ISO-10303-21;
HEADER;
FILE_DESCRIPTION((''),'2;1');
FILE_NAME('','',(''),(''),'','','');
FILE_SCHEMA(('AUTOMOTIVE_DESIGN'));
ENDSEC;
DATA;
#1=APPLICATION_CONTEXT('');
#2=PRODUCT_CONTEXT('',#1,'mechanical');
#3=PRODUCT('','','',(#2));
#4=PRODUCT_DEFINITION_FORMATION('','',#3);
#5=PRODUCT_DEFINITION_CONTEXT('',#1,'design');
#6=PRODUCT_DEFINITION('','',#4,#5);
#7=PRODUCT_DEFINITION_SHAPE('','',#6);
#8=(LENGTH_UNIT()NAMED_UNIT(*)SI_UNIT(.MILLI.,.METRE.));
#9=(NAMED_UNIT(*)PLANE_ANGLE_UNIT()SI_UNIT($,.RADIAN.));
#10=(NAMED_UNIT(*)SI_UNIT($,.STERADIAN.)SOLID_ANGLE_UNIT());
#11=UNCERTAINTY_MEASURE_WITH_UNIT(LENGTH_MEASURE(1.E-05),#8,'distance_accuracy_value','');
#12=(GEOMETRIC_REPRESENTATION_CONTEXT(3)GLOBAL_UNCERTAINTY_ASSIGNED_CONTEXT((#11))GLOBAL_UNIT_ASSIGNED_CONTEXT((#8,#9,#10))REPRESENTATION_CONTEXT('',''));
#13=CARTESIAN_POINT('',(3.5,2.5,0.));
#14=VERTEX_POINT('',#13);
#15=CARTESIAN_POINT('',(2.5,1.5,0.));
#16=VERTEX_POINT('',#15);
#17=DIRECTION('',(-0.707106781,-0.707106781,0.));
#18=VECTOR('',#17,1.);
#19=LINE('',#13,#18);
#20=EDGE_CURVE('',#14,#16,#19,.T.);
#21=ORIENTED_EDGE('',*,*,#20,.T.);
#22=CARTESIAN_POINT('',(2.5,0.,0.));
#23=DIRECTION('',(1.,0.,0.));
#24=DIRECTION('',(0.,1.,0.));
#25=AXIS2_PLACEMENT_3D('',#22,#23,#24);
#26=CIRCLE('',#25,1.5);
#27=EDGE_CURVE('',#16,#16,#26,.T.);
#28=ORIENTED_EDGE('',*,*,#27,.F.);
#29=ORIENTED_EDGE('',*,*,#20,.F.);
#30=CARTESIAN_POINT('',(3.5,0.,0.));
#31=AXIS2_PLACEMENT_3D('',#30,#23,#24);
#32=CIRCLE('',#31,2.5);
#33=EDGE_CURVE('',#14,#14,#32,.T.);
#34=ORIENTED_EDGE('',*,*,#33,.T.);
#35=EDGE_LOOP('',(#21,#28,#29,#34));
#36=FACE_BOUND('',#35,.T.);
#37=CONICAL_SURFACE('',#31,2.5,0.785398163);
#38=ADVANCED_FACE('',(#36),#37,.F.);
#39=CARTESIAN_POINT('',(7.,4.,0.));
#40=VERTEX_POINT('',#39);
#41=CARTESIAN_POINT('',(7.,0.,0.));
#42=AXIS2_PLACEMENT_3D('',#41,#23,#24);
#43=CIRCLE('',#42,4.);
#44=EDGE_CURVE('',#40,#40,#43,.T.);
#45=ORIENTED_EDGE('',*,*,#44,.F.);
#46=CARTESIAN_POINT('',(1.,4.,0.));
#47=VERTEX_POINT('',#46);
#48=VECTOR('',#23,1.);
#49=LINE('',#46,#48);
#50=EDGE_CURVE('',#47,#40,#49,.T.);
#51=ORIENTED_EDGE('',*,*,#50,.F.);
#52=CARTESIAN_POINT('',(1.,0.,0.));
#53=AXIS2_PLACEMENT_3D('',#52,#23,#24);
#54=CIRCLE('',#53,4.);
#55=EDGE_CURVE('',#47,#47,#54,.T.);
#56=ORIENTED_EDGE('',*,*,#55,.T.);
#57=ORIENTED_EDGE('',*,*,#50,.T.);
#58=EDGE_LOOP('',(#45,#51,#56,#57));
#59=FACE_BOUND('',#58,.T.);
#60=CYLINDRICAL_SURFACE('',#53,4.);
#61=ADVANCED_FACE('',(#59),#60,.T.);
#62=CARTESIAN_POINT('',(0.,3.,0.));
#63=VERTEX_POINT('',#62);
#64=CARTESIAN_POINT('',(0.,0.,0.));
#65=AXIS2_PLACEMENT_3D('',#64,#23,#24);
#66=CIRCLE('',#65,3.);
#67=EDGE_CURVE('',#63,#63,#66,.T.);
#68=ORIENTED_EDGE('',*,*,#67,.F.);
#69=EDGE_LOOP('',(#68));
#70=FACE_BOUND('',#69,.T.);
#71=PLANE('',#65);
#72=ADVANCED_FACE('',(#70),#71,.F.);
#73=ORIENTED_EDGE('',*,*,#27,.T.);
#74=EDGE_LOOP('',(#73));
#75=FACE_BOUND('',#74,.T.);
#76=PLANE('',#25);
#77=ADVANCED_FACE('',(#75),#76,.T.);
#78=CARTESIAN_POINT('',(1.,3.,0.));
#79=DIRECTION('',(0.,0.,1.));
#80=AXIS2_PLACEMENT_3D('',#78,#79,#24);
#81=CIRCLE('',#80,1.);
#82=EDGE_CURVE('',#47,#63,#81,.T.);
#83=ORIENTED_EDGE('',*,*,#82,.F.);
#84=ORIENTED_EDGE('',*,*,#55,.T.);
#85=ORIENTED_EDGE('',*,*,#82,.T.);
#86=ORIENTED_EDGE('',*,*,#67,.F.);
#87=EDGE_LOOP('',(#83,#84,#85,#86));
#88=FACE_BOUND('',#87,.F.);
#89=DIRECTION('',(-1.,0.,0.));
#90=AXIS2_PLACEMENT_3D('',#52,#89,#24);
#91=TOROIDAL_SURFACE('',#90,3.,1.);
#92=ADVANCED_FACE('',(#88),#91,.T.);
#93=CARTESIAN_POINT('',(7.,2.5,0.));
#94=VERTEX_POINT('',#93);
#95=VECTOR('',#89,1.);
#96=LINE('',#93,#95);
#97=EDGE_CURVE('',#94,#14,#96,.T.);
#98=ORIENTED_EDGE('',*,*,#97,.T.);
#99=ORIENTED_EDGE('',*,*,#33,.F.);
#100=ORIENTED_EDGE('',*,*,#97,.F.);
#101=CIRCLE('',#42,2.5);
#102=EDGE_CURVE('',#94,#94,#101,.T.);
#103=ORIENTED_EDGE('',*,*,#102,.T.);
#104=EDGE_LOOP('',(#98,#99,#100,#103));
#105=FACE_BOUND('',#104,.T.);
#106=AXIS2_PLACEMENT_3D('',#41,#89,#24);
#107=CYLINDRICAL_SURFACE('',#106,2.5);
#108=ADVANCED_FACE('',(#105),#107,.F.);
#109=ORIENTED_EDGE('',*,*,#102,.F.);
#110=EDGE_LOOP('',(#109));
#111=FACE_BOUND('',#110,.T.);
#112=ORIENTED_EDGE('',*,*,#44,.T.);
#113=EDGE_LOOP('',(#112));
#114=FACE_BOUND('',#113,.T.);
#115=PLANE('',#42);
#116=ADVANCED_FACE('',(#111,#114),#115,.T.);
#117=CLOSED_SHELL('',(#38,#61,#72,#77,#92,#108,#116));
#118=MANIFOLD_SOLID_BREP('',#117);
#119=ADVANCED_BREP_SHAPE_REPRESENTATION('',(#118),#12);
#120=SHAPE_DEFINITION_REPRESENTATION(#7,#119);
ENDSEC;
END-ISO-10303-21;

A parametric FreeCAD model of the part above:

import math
import FreeCAD as App
import Part
import Sketcher
Q = App.Units.Quantity

doc = App.newDocument("Part")
params = doc.addObject("Spreadsheet::Sheet", "Params")
for row, (alias, value) in enumerate([
    ("sketch1_radius", "1 mm"),
    ("sketch1_width", "6 mm"),
    ("sketch1_height", "3 mm"),
    ("sketch1_width2", "2.5 mm"),
    ("sketch1_width3", "3.5 mm"),
    ("revolution_angle", "360 deg"),
], start=1):
    params.set(f"A{row}", alias)
    params.set(f"B{row}", "=" + value)
    params.setAlias(f"B{row}", alias)

body = doc.addObject("PartDesign::Body", "Body")

sketch1 = body.newObject("Sketcher::SketchObject", "Sketch")
sketch1.AttachmentSupport = (doc.getObject("XY_Plane"), [""])
sketch1.MapMode = "FlatFace"
sketch1.addGeometry(Part.LineSegment(App.Vector(0, 0, 0), App.Vector(2.5, 0, 0)), False)
sketch1.addGeometry(Part.LineSegment(App.Vector(2.5, 0, 0), App.Vector(2.5, 1.5, 0)), False)
sketch1.addGeometry(Part.LineSegment(App.Vector(2.5, 1.5, 0), App.Vector(3.5, 2.5, 0)), False)
sketch1.addGeometry(Part.LineSegment(App.Vector(3.5, 2.5, 0), App.Vector(7, 2.5, 0)), False)
sketch1.addGeometry(Part.LineSegment(App.Vector(7, 2.5, 0), App.Vector(7, 4, 0)), False)
sketch1.addGeometry(Part.LineSegment(App.Vector(7, 4, 0), App.Vector(1, 4, 0)), False)
sketch1.addGeometry(Part.ArcOfCircle(Part.Circle(App.Vector(1, 3, 0), App.Vector(0, 0, 1), 1), math.radians(90), math.radians(180)), False)
sketch1.addGeometry(Part.LineSegment(App.Vector(0, 3, 0), App.Vector(0, 0, 0)), False)
sketch1.addConstraint(Sketcher.Constraint("Coincident", 0, 2, 1, 1))
sketch1.addConstraint(Sketcher.Constraint("Coincident", 1, 2, 2, 1))
sketch1.addConstraint(Sketcher.Constraint("Coincident", 2, 2, 3, 1))
sketch1.addConstraint(Sketcher.Constraint("Coincident", 3, 2, 4, 1))
sketch1.addConstraint(Sketcher.Constraint("Coincident", 4, 2, 5, 1))
sketch1.addConstraint(Sketcher.Constraint("Tangent", 5, 2, 6, 1))
sketch1.addConstraint(Sketcher.Constraint("Tangent", 6, 2, 7, 1))
sketch1.addConstraint(Sketcher.Constraint("Coincident", 7, 2, 0, 1))
sketch1.addConstraint(Sketcher.Constraint("Horizontal", 0))
sketch1.addConstraint(Sketcher.Constraint("Vertical", 1))
sketch1.addConstraint(Sketcher.Constraint("Horizontal", 3))
sketch1.addConstraint(Sketcher.Constraint("Vertical", 4))
sketch1.addConstraint(Sketcher.Constraint("Horizontal", 5))
sketch1.addConstraint(Sketcher.Constraint("Vertical", 7))
sketch1.addConstraint(Sketcher.Constraint("Coincident", 7, 2, -1, 1))
sketch1.addConstraint(Sketcher.Constraint("Equal", 1, 4))
sketch1.addConstraint(Sketcher.Constraint("Radius", 6, 1.0))
sketch1.addConstraint(Sketcher.Constraint("DistanceX", 5, 2, 5, 1, 6.0))
sketch1.addConstraint(Sketcher.Constraint("DistanceY", 7, 2, 7, 1, 3.0))
sketch1.addConstraint(Sketcher.Constraint("Angle", 2, Q("45 deg")))
sketch1.addConstraint(Sketcher.Constraint("DistanceX", 0, 1, 0, 2, 2.5))
sketch1.addConstraint(Sketcher.Constraint("DistanceX", 3, 1, 3, 2, 3.5))
sketch1.setExpression("Constraints[16]", "Params.sketch1_radius")
sketch1.setExpression("Constraints[17]", "Params.sketch1_width")
sketch1.setExpression("Constraints[18]", "Params.sketch1_height")
sketch1.setExpression("Constraints[20]", "Params.sketch1_width2")
sketch1.setExpression("Constraints[21]", "Params.sketch1_width3")
revolution = body.newObject("PartDesign::Revolution", "Revolution")
revolution.Profile = sketch1
revolution.ReferenceAxis = (sketch1, ["H_Axis"])
revolution.setExpression("Angle", "Params.revolution_angle")

doc.recompute()
